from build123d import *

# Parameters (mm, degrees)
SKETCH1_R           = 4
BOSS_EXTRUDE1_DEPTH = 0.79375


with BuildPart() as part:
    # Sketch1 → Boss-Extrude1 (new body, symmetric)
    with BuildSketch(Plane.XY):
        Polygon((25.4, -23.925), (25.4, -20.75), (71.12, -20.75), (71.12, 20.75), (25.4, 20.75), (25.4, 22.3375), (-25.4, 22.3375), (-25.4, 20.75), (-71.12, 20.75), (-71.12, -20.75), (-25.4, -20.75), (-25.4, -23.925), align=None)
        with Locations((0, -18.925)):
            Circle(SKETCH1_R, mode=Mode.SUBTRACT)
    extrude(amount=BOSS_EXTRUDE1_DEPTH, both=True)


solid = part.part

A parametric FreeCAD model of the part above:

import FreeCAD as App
import Part
import Sketcher

V = App.Vector
Q = App.Units.Quantity


def add_polygon(sketch, points):
    """Adds a closed chain of lines whose ends are joined by coincident constraints."""
    first, n = sketch.GeometryCount, len(points)
    for a, b in zip(points, points[1:] + points[:1]):
        sketch.addGeometry(Part.LineSegment(App.Vector(*a, 0), App.Vector(*b, 0)), False)
    for i in range(n):
        sketch.addConstraint(Sketcher.Constraint("Coincident", first + i, 2, first + (i + 1) % n, 1))

doc = App.newDocument("Part")
body = doc.addObject("PartDesign::Body", "Body")

# Sketch on XY plane
sketch1 = doc.addObject("Sketcher::SketchObject", "Sketch")
body.addObject(sketch1)
sketch1.AttachmentSupport = (doc.XY_Plane, [""])
sketch1.MapMode = "FlatFace"
add_polygon(sketch1, [(25.4, -23.9), (25.4, -20.8), (71.1, -20.8), (71.1, 20.8), (25.4, 20.8), (25.4, 22.3), (-25.4, 22.3), (-25.4, 20.8), (-71.1, 20.8), (-71.1, -20.8), (-25.4, -20.8), (-25.4, -23.9)])  # lines 0-11
sketch1.addGeometry(Part.Circle(V(0, -18.9, 0), V(0, 0, 1), 4), False)  # 12
sketch1.addConstraint([
    Sketcher.Constraint("Vertical", 0),
    Sketcher.Constraint("Horizontal", 1),
    Sketcher.Constraint("Vertical", 2),
    Sketcher.Constraint("Horizontal", 3),
    Sketcher.Constraint("Vertical", 4),
    Sketcher.Constraint("Horizontal", 5),
    Sketcher.Constraint("Vertical", 6),
    Sketcher.Constraint("Horizontal", 7),
    Sketcher.Constraint("Vertical", 8),
    Sketcher.Constraint("Horizontal", 9),
    Sketcher.Constraint("Vertical", 10),
    Sketcher.Constraint("Horizontal", 11),
    Sketcher.Constraint("Symmetric", 0, 2, 6, 2, -1, 1),
    Sketcher.Constraint("Symmetric", 2, 2, 8, 2, -1, 1),
    Sketcher.Constraint("Symmetric", 3, 2, 6, 2, -2),
    Sketcher.Constraint("PointOnObject", 12, 3, -2),
    Sketcher.Constraint("Vertical", 6, 2, 9, 2),
    Sketcher.Constraint("DistanceX", 5, 2, 5, 1, Q("2 in")),
    Sketcher.Constraint("DistanceX", 1, 1, 1, 2, Q("1.8 in")),
    Sketcher.Constraint("Diameter", 12, Q("8 mm")),
    Sketcher.Constraint("DistanceY", 0, 1, 0, 2, Q("0.125 in")),
    Sketcher.Constraint("DistanceY", 4, 1, 4, 2, Q("0.0625 in")),
    Sketcher.Constraint("DistanceY", 2, 1, 2, 2, Q("41.5 mm")),
    Sketcher.Constraint("DistanceY", 12, 3, -1, 1, Q("18.925 mm")),
])
pad1 = doc.addObject("PartDesign::Pad", "Pad")
body.addObject(pad1)
pad1.Profile = sketch1
pad1.Length = Q("0.0625 in")
pad1.Midplane = True

doc.recompute()
